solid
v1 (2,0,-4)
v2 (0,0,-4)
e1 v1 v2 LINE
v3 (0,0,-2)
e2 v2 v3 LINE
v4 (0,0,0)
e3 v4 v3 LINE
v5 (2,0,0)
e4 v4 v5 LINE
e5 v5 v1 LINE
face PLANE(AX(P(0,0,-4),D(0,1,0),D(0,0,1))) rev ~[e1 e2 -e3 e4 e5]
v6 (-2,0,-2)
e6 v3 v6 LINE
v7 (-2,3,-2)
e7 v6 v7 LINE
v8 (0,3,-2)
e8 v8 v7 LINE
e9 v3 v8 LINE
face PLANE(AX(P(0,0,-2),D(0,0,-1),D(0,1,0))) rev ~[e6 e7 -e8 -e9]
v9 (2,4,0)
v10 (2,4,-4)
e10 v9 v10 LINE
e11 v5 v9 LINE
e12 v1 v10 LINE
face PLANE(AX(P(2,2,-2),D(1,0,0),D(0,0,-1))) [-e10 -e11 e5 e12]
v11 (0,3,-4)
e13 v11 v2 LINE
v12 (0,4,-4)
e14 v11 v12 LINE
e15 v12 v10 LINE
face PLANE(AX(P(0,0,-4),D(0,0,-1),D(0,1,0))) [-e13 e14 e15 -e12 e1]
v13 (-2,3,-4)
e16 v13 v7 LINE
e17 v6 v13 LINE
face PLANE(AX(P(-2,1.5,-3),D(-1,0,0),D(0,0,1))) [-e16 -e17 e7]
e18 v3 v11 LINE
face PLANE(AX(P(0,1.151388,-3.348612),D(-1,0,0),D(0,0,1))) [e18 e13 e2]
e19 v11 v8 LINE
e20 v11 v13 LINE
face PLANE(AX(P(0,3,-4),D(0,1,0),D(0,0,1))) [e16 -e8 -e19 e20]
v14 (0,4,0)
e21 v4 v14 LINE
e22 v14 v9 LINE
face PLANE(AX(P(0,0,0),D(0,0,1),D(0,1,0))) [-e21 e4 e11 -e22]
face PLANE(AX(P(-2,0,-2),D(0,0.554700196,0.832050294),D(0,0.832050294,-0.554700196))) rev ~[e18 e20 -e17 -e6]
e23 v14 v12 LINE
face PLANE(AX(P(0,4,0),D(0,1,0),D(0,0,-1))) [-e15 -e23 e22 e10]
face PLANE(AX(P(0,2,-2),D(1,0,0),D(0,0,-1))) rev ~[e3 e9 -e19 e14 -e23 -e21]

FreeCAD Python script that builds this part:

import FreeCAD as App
import Part
import Sketcher

doc = App.newDocument("Part")
body = doc.addObject("PartDesign::Body", "Body")

# Sketch on YZ plane
sketch1 = doc.addObject("Sketcher::SketchObject", "Sketch")
body.addObject(sketch1)
sketch1.AttachmentSupport = (doc.YZ_Plane, [""])
sketch1.MapMode = "FlatFace"
sketch1.addGeometry([
    Part.LineSegment(App.Vector(4, 0, 0), App.Vector(0, 0, 0)),
    Part.LineSegment(App.Vector(0, 0, 0), App.Vector(0, -4, 0)),
    Part.LineSegment(App.Vector(0, -4, 0), App.Vector(4, -4, 0)),
    Part.LineSegment(App.Vector(4, -4, 0), App.Vector(4, 0, 0)),
], False)
sketch1.addConstraint([
    Sketcher.Constraint("Coincident", 0, 2, 1, 1),
    Sketcher.Constraint("Coincident", 1, 2, 2, 1),
    Sketcher.Constraint("Coincident", 2, 2, 3, 1),
    Sketcher.Constraint("Coincident", 3, 2, 0, 1),
    Sketcher.Constraint("Horizontal", 0),
    Sketcher.Constraint("Vertical", 1),
    Sketcher.Constraint("Horizontal", 2),
    Sketcher.Constraint("Vertical", 3),
    Sketcher.Constraint("Coincident", 0, 2, -1, 1),
    Sketcher.Constraint("Equal", 2, 1),
    Sketcher.Constraint("DistanceX", 0, 2, 0, 1, 4.0),
])
pad1 = doc.addObject("PartDesign::Pad", "Pad")
body.addObject(pad1)
pad1.Profile = sketch1
pad1.Length = 2

# Sketch on YZ plane
sketch2 = doc.addObject("Sketcher::SketchObject", "Sketch001")
body.addObject(sketch2)
sketch2.AttachmentSupport = (doc.YZ_Plane, [""])
sketch2.MapMode = "FlatFace"
sketch2.addGeometry([
    Part.LineSegment(App.Vector(3, -4, 0), App.Vector(0, -4, 0)),
    Part.LineSegment(App.Vector(0, -4, 0), App.Vector(0, -2, 0)),
    Part.LineSegment(App.Vector(0, -2, 0), App.Vector(3, -2, 0)),
    Part.LineSegment(App.Vector(3, -2, 0), App.Vector(3, -4, 0)),
], False)
sketch2.addConstraint([
    Sketcher.Constraint("Coincident", 0, 2, 1, 1),
    Sketcher.Constraint("Coincident", 1, 2, 2, 1),
    Sketcher.Constraint("Coincident", 2, 2, 3, 1),
    Sketcher.Constraint("Coincident", 3, 2, 0, 1),
    Sketcher.Constraint("Horizontal", 0),
    Sketcher.Constraint("Vertical", 1),
    Sketcher.Constraint("Horizontal", 2),
    Sketcher.Constraint("Vertical", 3),
    Sketcher.Constraint("PointOnObject", 0, 2, -2),
    Sketcher.Constraint("DistanceX", 0, 2, 0, 1, 3.0),
    Sketcher.Constraint("DistanceY", 1, 1, 1, 2, 2.0),
    Sketcher.Constraint("DistanceY", 0, 2, -1, 1, 4.0),
])
pad2 = doc.addObject("PartDesign::Pad", "Pad001")
body.addObject(pad2)
pad2.Profile = sketch2
pad2.Length = 2
pad2.Reversed = True

# Sketch on YZ plane
sketch3 = doc.addObject("Sketcher::SketchObject", "Sketch002")
body.addObject(sketch3)
sketch3.AttachmentSupport = (doc.YZ_Plane, [""])
sketch3.MapMode = "FlatFace"
sketch3.AttachmentOffset = App.Placement(App.Vector(0, 0, -2), App.Rotation())
sketch3.addGeometry([
    Part.LineSegment(App.Vector(0, -2, 0), App.Vector(3, -4, 0)),
    Part.LineSegment(App.Vector(3, -4, 0), App.Vector(0, -4, 0)),
    Part.LineSegment(App.Vector(0, -4, 0), App.Vector(0, -2, 0)),
], False)
sketch3.addConstraint([
    Sketcher.Constraint("Coincident", 0, 2, 1, 1),
    Sketcher.Constraint("Coincident", 1, 2, 2, 1),
    Sketcher.Constraint("Coincident", 2, 2, 0, 1),
    Sketcher.Constraint("Horizontal", 1),
    Sketcher.Constraint("Vertical", 2),
    Sketcher.Constraint("PointOnObject", 1, 2, -2),
    Sketcher.Constraint("DistanceX", 1, 2, 1, 1, 3.0),
    Sketcher.Constraint("DistanceY", 2, 1, 2, 2, 2.0),
    Sketcher.Constraint("DistanceY", 0, 2, -1, 1, 4.0),
])
pocket1 = doc.addObject("PartDesign::Pocket", "Pocket")
body.addObject(pocket1)
pocket1.Profile = sketch3
pocket1.Length = 2
pocket1.Reversed = True

doc.recompute()
